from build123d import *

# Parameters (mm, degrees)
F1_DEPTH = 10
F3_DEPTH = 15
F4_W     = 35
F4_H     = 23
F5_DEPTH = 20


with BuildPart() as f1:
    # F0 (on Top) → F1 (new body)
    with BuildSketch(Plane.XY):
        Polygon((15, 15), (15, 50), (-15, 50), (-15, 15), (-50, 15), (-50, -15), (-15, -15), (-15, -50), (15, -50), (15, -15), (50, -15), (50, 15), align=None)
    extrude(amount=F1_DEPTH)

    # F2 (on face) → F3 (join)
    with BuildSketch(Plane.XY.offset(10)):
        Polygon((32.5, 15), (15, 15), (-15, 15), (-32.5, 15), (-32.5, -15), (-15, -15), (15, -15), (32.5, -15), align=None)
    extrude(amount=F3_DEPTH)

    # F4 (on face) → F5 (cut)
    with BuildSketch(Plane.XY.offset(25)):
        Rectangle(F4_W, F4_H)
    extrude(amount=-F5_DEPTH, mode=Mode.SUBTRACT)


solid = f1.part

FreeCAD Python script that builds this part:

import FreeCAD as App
import Part
import Sketcher

V = App.Vector
Q = App.Units.Quantity

doc = App.newDocument("Part")
body = doc.addObject("PartDesign::Body", "Body")

# Sketch on XY plane
sketch1 = body.newObject("Sketcher::SketchObject", "Sketch")
sketch1.AttachmentSupport = (doc.getObject("XY_Plane"), [""])
sketch1.MapMode = "FlatFace"
sketch1.addGeometry([
    Part.LineSegment(V(15, 15, 0), V(15, 50, 0)),  # 0
    Part.LineSegment(V(15, 50, 0), V(-15, 50, 0)),  # 1
    Part.LineSegment(V(-15, 50, 0), V(-15, 15, 0)),  # 2
    Part.LineSegment(V(-15, 15, 0), V(-50, 15, 0)),  # 3
    Part.LineSegment(V(-50, 15, 0), V(-50, -15, 0)),  # 4
    Part.LineSegment(V(-50, -15, 0), V(-15, -15, 0)),  # 5
    Part.LineSegment(V(-15, -15, 0), V(-15, -50, 0)),  # 6
    Part.LineSegment(V(-15, -50, 0), V(15, -50, 0)),  # 7
    Part.LineSegment(V(15, -50, 0), V(15, -15, 0)),  # 8
    Part.LineSegment(V(15, -15, 0), V(50, -15, 0)),  # 9
    Part.LineSegment(V(50, -15, 0), V(50, 15, 0)),  # 10
    Part.LineSegment(V(50, 15, 0), V(15, 15, 0)),  # 11
], False)
sketch1.addConstraint([
    Sketcher.Constraint("Coincident", 0, 2, 1, 1),
    Sketcher.Constraint("Coincident", 1, 2, 2, 1),
    Sketcher.Constraint("Coincident", 2, 2, 3, 1),
    Sketcher.Constraint("Coincident", 3, 2, 4, 1),
    Sketcher.Constraint("Coincident", 4, 2, 5, 1),
    Sketcher.Constraint("Coincident", 5, 2, 6, 1),
    Sketcher.Constraint("Coincident", 6, 2, 7, 1),
    Sketcher.Constraint("Coincident", 7, 2, 8, 1),
    Sketcher.Constraint("Coincident", 8, 2, 9, 1),
    Sketcher.Constraint("Coincident", 9, 2, 10, 1),
    Sketcher.Constraint("Coincident", 10, 2, 11, 1),
    Sketcher.Constraint("Coincident", 11, 2, 0, 1),
    Sketcher.Constraint("Vertical", 0),
    Sketcher.Constraint("Horizontal", 1),
    Sketcher.Constraint("Vertical", 2),
    Sketcher.Constraint("Horizontal", 3),
    Sketcher.Constraint("Vertical", 4),
    Sketcher.Constraint("Horizontal", 5),
    Sketcher.Constraint("Vertical", 6),
    Sketcher.Constraint("Horizontal", 7),
    Sketcher.Constraint("Vertical", 8),
    Sketcher.Constraint("Horizontal", 9),
    Sketcher.Constraint("Vertical", 10),
    Sketcher.Constraint("Horizontal", 11),
    Sketcher.Constraint("Symmetric", 0, 2, 6, 2, -1, 1),
    Sketcher.Constraint("Symmetric", 2, 2, 8, 2, -1, 1),
    Sketcher.Constraint("Symmetric", 4, 2, 10, 2, -1, 1),
    Sketcher.Constraint("Symmetric", 5, 2, 8, 2, -2),
    Sketcher.Constraint("Equal", 11, 0),
    Sketcher.Constraint("Equal", 7, 4),
    Sketcher.Constraint("DistanceX", 1, 2, 1, 1, Q("30 mm")),
    Sketcher.Constraint("DistanceX", 3, 2, 3, 1, Q("35 mm")),
])
pad1 = body.newObject("PartDesign::Pad", "Pad")
pad1.Profile = sketch1
pad1.Length = 10

# Sketch on XY plane
sketch2 = body.newObject("Sketcher::SketchObject", "Sketch001")
sketch2.AttachmentSupport = (doc.getObject("XY_Plane"), [""])
sketch2.MapMode = "FlatFace"
sketch2.AttachmentOffset = App.Placement(V(0, 0, 10), App.Rotation())
sketch2.addGeometry([
    Part.LineSegment(V(32, 15, 0), V(-32, 15, 0)),
    Part.LineSegment(V(-32, 15, 0), V(-32, -15, 0)),
    Part.LineSegment(V(-32, -15, 0), V(32, -15, 0)),
    Part.LineSegment(V(32, -15, 0), V(32, 15, 0)),
], False)
sketch2.addConstraint([
    Sketcher.Constraint("Coincident", 0, 2, 1, 1),
    Sketcher.Constraint("Coincident", 1, 2, 2, 1),
    Sketcher.Constraint("Coincident", 2, 2, 3, 1),
    Sketcher.Constraint("Coincident", 3, 2, 0, 1),
    Sketcher.Constraint("Horizontal", 0),
    Sketcher.Constraint("Vertical", 1),
    Sketcher.Constraint("Horizontal", 2),
    Sketcher.Constraint("Vertical", 3),
    Sketcher.Constraint("Symmetric", 0, 2, 2, 2, -1, 1),
    Sketcher.Constraint("DistanceX", 0, 2, 0, 1, Q("65 mm")),
    Sketcher.Constraint("DistanceY", 1, 2, 1, 1, Q("30 mm")),
])
pad2 = body.newObject("PartDesign::Pad", "Pad001")
pad2.Profile = sketch2
pad2.Length = 15

# Sketch on XY plane
sketch3 = body.newObject("Sketcher::SketchObject", "Sketch002")
sketch3.AttachmentSupport = (doc.getObject("XY_Plane"), [""])
sketch3.MapMode = "FlatFace"
sketch3.AttachmentOffset = App.Placement(V(0, 0, 25), App.Rotation())
sketch3.addGeometry([
    Part.LineSegment(V(-18, 12, 0), V(-18, -12, 0)),
    Part.LineSegment(V(-18, -12, 0), V(18, -12, 0)),
    Part.LineSegment(V(18, -12, 0), V(18, 12, 0)),
    Part.LineSegment(V(18, 12, 0), V(-18, 12, 0)),
], False)
sketch3.addConstraint([
    Sketcher.Constraint("Coincident", 0, 2, 1, 1),
    Sketcher.Constraint("Coincident", 1, 2, 2, 1),
    Sketcher.Constraint("Coincident", 2, 2, 3, 1),
    Sketcher.Constraint("Coincident", 3, 2, 0, 1),
    Sketcher.Constraint("Vertical", 0),
    Sketcher.Constraint("Horizontal", 1),
    Sketcher.Constraint("Vertical", 2),
    Sketcher.Constraint("Horizontal", 3),
    Sketcher.Constraint("Symmetric", 0, 2, 2, 2, -1, 1),
    Sketcher.Constraint("DistanceX", 1, 1, 1, 2, Q("35 mm")),
    Sketcher.Constraint("DistanceY", 0, 2, 0, 1, Q("23 mm")),
])
pocket1 = body.newObject("PartDesign::Pocket", "Pocket")
pocket1.Profile = sketch3
pocket1.Length = 20

doc.recompute()
